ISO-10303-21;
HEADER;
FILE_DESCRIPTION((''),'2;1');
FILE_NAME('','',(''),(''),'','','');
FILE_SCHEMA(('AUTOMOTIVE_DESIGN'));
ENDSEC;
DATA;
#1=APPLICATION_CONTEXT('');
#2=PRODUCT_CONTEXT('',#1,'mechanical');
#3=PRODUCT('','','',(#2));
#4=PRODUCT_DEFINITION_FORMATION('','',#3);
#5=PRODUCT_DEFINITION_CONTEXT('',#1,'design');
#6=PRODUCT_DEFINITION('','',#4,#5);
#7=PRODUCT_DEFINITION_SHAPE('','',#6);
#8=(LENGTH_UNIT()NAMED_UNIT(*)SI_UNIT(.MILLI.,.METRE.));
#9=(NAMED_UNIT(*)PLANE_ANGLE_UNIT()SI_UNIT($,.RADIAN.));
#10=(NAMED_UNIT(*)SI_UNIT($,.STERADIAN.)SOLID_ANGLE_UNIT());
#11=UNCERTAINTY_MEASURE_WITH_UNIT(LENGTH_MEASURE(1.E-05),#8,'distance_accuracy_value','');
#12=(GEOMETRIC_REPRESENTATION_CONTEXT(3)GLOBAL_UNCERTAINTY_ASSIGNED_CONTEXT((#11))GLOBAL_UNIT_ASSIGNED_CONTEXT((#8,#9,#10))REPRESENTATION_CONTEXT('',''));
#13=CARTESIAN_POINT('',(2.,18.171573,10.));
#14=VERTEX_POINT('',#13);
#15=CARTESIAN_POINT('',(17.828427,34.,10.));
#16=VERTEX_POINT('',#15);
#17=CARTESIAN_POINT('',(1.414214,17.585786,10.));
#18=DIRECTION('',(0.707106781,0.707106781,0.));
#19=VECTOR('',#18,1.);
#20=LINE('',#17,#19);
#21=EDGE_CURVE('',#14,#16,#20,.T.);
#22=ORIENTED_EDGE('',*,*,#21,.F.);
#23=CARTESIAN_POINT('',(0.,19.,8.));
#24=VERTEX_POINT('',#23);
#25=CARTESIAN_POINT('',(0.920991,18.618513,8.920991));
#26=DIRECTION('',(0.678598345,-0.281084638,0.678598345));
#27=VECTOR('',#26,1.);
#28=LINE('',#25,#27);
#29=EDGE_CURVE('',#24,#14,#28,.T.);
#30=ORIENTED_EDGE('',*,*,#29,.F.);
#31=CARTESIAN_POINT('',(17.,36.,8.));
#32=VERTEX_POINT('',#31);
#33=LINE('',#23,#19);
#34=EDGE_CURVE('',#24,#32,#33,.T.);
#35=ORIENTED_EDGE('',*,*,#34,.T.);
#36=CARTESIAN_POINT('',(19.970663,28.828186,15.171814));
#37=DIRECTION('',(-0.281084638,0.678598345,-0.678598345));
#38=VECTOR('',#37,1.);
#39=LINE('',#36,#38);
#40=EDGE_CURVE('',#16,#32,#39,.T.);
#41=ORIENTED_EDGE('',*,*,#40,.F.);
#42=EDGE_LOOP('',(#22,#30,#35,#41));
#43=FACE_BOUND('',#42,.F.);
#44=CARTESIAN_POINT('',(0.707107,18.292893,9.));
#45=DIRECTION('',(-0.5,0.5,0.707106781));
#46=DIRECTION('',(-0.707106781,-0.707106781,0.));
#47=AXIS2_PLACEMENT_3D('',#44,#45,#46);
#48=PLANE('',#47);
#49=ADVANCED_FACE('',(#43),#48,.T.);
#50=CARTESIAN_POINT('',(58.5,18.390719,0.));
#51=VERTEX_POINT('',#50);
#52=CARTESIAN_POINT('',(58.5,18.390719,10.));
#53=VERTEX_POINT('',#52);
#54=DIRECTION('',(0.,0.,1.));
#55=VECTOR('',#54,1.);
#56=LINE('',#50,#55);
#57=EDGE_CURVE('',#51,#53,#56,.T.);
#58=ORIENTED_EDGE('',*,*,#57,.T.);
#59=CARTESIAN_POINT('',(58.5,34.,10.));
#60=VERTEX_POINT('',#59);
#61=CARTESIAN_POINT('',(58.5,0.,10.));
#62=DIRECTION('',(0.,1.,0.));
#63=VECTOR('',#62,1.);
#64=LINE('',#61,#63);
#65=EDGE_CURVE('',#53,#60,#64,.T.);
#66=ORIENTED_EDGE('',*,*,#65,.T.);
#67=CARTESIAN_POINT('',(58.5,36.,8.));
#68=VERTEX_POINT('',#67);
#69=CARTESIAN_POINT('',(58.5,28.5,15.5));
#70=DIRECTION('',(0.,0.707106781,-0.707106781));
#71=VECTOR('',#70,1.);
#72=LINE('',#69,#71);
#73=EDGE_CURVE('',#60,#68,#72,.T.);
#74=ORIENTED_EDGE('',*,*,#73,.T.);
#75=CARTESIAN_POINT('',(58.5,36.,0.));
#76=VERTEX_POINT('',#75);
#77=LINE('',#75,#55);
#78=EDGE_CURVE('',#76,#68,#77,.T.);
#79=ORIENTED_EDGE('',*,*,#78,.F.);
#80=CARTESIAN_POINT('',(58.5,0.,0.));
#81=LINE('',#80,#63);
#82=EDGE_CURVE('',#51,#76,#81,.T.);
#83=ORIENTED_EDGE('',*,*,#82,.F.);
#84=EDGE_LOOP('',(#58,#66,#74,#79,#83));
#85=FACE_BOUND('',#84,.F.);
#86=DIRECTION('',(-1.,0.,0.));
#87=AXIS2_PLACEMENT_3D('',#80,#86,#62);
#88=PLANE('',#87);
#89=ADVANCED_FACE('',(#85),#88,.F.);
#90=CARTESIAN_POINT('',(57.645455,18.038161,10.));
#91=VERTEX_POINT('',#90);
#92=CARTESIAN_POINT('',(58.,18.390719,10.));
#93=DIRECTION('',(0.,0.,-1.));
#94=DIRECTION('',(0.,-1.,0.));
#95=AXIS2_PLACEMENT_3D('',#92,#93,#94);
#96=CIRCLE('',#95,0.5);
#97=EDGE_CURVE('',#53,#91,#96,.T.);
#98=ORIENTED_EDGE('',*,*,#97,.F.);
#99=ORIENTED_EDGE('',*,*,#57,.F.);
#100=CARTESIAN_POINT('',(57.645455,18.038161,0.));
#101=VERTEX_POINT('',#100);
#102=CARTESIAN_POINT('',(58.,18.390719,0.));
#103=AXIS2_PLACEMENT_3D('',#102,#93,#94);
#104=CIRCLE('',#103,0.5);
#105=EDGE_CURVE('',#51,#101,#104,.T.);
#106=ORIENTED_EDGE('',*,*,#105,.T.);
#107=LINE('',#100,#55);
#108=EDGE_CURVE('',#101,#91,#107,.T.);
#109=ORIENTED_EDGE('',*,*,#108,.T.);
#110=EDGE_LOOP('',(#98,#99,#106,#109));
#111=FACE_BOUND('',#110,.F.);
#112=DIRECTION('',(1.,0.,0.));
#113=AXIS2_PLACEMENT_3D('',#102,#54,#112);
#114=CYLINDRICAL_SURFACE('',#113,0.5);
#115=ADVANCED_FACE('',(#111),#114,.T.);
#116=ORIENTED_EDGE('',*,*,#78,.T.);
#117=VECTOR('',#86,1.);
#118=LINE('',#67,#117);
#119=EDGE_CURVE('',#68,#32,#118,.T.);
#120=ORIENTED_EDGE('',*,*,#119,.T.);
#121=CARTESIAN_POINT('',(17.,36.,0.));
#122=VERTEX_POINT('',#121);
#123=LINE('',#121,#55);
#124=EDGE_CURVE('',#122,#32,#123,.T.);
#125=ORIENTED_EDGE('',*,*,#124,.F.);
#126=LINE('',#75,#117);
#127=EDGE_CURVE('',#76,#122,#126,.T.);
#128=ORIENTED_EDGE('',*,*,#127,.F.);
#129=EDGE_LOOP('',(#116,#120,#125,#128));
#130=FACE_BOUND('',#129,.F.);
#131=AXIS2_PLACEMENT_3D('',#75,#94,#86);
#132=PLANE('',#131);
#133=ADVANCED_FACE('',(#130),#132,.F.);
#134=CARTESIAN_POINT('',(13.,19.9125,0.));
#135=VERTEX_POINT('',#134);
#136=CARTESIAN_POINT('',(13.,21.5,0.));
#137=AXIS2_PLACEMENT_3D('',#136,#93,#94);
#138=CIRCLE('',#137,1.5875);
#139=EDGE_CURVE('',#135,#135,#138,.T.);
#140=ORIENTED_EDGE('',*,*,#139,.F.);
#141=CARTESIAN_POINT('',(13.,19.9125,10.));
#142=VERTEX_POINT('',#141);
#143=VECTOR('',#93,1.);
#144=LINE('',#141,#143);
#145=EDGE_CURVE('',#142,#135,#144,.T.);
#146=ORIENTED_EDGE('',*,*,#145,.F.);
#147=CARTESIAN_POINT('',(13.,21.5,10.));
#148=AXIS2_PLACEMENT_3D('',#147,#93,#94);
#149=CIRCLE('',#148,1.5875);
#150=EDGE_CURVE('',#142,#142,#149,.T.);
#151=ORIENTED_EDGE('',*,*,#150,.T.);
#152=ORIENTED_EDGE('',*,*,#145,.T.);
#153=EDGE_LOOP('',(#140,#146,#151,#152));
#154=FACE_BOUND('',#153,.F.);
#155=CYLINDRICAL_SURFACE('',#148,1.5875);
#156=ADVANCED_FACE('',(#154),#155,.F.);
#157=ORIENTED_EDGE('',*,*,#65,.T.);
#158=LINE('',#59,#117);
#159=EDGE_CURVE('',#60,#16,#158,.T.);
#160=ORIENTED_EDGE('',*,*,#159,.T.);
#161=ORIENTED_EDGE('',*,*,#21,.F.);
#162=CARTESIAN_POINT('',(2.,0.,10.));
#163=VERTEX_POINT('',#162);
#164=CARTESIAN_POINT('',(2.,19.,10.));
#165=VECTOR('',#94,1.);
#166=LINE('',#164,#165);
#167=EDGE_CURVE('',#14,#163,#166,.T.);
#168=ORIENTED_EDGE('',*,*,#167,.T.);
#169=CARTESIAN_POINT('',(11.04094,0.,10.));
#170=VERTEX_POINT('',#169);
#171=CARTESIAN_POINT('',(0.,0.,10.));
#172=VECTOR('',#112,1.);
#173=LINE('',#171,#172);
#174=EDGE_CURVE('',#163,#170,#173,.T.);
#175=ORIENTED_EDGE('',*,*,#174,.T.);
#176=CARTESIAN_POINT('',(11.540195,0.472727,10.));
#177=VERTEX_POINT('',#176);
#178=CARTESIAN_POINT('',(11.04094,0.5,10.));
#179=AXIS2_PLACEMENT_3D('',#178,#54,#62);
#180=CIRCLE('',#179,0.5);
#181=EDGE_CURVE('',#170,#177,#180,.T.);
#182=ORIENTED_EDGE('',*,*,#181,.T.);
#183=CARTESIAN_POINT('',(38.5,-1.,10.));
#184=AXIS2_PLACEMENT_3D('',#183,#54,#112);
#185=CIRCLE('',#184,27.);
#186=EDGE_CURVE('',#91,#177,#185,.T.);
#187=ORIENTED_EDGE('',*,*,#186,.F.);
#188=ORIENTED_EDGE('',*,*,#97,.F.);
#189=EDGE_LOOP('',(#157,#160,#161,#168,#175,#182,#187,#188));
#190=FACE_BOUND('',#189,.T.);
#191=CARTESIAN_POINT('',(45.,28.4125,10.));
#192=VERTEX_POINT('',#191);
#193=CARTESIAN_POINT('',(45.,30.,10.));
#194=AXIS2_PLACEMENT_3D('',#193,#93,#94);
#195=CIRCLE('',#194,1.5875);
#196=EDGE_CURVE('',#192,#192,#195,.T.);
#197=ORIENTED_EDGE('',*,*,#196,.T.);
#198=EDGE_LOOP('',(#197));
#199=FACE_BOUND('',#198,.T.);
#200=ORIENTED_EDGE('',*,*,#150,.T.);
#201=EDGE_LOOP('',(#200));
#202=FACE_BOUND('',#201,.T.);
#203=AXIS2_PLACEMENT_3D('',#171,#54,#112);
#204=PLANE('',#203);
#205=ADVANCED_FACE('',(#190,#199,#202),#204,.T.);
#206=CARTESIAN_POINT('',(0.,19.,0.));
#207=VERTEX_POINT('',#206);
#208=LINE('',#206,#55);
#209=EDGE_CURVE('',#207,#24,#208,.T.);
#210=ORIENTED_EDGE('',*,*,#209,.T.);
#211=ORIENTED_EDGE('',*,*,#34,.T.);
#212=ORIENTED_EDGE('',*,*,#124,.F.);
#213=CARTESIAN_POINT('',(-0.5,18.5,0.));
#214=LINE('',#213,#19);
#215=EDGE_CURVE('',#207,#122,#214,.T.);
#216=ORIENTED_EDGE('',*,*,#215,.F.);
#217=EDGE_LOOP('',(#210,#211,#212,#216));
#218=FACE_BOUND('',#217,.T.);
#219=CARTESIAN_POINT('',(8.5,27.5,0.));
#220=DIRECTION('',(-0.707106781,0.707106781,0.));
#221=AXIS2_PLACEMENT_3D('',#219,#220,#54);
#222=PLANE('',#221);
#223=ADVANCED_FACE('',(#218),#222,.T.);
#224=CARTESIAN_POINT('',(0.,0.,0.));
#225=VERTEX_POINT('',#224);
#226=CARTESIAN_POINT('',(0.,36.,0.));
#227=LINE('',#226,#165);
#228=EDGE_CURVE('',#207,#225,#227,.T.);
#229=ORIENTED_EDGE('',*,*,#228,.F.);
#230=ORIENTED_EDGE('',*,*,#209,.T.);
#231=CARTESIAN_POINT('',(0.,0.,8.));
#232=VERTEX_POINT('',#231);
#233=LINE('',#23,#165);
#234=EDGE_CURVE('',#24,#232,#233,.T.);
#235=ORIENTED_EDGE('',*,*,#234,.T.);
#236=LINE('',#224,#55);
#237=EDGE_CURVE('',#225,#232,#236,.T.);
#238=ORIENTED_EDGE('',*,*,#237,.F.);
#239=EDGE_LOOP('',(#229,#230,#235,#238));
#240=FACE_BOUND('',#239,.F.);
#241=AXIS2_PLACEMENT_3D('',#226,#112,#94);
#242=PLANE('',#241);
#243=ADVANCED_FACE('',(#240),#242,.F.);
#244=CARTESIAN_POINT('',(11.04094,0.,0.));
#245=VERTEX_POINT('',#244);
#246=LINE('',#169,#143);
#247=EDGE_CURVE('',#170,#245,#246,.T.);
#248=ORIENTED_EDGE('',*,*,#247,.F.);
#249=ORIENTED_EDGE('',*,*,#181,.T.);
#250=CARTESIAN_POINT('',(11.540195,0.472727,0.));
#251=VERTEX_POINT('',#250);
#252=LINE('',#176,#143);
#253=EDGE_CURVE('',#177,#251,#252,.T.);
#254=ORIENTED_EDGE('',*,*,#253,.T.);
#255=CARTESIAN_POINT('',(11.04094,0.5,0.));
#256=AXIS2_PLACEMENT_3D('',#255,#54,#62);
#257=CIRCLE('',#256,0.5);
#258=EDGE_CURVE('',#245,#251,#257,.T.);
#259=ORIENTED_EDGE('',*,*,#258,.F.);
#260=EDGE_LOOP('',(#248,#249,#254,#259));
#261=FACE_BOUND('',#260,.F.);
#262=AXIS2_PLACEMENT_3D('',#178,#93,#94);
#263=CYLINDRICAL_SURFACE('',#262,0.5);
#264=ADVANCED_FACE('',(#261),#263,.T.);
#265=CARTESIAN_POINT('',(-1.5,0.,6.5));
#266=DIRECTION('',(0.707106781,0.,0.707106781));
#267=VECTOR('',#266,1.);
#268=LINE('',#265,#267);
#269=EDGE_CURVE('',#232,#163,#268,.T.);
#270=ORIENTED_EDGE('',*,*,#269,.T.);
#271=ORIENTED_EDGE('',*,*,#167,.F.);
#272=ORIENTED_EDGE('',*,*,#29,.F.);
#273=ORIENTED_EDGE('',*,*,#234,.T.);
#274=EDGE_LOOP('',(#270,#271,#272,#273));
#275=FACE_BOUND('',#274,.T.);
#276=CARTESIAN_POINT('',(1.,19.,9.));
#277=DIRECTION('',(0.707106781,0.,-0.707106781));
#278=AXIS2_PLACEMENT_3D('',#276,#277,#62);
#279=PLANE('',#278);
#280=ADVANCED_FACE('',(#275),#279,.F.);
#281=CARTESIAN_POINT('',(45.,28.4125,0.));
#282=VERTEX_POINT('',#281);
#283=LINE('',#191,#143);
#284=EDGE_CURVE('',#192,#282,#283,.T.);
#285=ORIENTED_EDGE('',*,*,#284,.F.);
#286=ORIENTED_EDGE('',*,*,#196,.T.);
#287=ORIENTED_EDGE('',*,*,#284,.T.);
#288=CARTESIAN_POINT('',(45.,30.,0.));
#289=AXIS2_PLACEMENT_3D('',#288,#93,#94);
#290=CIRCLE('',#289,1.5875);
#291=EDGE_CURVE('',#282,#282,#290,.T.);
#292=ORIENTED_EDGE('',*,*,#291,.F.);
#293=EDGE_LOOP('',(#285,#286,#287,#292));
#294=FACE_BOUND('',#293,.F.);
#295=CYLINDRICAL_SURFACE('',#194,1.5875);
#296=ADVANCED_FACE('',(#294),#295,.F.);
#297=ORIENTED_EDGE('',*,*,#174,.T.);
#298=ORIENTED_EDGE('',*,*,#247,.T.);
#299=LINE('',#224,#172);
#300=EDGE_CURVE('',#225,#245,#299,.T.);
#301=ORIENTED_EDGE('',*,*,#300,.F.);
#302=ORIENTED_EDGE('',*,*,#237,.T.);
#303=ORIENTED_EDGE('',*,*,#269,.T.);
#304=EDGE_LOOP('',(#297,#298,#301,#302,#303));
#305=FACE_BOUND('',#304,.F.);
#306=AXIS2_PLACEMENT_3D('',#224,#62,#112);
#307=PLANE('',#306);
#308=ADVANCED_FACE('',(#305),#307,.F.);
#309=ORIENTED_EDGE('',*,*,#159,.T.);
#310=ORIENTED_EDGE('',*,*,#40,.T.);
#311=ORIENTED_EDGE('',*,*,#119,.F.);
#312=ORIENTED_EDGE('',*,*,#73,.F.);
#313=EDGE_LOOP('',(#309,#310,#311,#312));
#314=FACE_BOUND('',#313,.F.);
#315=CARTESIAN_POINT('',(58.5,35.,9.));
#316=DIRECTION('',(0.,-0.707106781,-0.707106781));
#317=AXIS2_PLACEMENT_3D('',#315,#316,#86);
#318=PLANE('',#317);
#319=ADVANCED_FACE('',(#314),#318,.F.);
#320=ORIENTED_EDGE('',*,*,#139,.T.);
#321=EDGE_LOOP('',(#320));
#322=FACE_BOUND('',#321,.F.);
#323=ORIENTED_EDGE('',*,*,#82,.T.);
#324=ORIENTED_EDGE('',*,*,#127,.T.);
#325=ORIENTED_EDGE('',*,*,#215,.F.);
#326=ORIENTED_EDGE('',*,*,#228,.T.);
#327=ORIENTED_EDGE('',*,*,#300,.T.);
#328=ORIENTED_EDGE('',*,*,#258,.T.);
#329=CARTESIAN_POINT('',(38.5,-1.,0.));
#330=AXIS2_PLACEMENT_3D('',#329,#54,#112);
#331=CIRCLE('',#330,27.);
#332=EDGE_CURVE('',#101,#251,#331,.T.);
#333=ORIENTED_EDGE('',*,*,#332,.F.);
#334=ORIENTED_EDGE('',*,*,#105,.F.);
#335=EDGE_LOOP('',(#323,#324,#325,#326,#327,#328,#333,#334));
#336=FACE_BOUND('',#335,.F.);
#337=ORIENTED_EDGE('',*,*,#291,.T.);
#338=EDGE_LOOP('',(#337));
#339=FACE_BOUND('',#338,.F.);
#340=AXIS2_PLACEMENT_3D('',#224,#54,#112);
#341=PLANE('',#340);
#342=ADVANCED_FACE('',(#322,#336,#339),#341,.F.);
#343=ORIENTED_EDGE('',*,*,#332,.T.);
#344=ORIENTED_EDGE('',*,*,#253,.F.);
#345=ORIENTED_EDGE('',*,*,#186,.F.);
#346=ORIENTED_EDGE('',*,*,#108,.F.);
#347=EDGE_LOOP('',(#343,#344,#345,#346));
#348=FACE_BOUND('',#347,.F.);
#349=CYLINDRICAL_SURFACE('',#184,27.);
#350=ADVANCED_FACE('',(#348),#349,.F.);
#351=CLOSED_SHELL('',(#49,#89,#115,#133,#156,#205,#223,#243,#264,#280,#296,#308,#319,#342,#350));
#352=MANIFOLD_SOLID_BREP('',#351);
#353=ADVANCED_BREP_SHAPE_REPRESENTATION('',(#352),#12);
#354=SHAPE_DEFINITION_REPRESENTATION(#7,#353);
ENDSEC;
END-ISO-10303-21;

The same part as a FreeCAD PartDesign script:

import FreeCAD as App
import Part
import Sketcher
from FreeCAD import Vector


def edges_at(feature, points):
    """Names of the edges that pass closest to the given points."""
    edges = feature.Shape.Edges
    near = lambda p: min(range(len(edges)), key=lambda i: edges[i].distToShape(Part.Vertex(*p))[0])
    return sorted({f"Edge{near(p) + 1}" for p in points})


def add_polygon(sketch, points):
    """Adds a closed chain of lines whose ends are joined by coincident constraints."""
    first, n = sketch.GeometryCount, len(points)
    for a, b in zip(points, points[1:] + points[:1]):
        sketch.addGeometry(Part.LineSegment(App.Vector(*a, 0), App.Vector(*b, 0)), False)
    for i in range(n):
        sketch.addConstraint(Sketcher.Constraint("Coincident", first + i, 2, first + (i + 1) % n, 1))

doc = App.newDocument("Part")
params = doc.addObject("Spreadsheet::Sheet", "Params")
for row, (alias, value) in enumerate([
    ("sketch1_height", "36 mm"),
    ("sketch1_width", "58.5 mm"),
    ("pad1_length", "10 mm"),
    ("sketch2_diameter", "54 mm"),
    ("pocket1_length", "10 mm"),
    ("hole_diameter", "3.175 mm"),
    ("hole_depth", "10 mm"),
    ("chamfer_size", "17 mm"),
    ("chamfer2_size", "2 mm"),
    ("fillet_radius", "0.5 mm"),
], start=1):
    params.set(f"A{row}", alias)
    params.set(f"B{row}", "=" + value)
    params.setAlias(f"B{row}", alias)

body = doc.addObject("PartDesign::Body", "Body")

sketch1 = body.newObject("Sketcher::SketchObject", "Sketch")
sketch1.AttachmentSupport = (doc.getObject("XY_Plane"), [""])
sketch1.MapMode = "FlatFace"
add_polygon(sketch1, [(0, 36), (0, 0), (58.5, 0), (58.5, 36)])
sketch1.addConstraint(Sketcher.Constraint("Vertical", 0))
sketch1.addConstraint(Sketcher.Constraint("Horizontal", 1))
sketch1.addConstraint(Sketcher.Constraint("Vertical", 2))
sketch1.addConstraint(Sketcher.Constraint("Horizontal", 3))
sketch1.addConstraint(Sketcher.Constraint("Coincident", 0, 2, -1, 1))
sketch1.addConstraint(Sketcher.Constraint("DistanceY", 0, 2, 0, 1, 36.0))
sketch1.addConstraint(Sketcher.Constraint("DistanceX", 1, 1, 1, 2, 58.5))
sketch1.setExpression("Constraints[9]", "Params.sketch1_height")
sketch1.setExpression("Constraints[10]", "Params.sketch1_width")
pad1 = body.newObject("PartDesign::Pad", "Pad")
pad1.Profile = sketch1
pad1.setExpression("Length", "Params.pad1_length")

sketch2 = body.newObject("Sketcher::SketchObject", "Sketch001")
sketch2.AttachmentSupport = (doc.getObject("XY_Plane"), [""])
sketch2.MapMode = "FlatFace"
sketch2.AttachmentOffset = App.Placement(Vector(0, 0, 10), App.Rotation())
sketch2.addGeometry(Part.Circle(Vector(38.5, -1, 0), Vector(0, 0, 1), 27), False)
sketch2.addConstraint(Sketcher.Constraint("Diameter", 0, 54.0))
sketch2.addConstraint(Sketcher.Constraint("DistanceY", 0, 3, -1, 1, 1.0))
sketch2.addConstraint(Sketcher.Constraint("DistanceX", -1, 1, 0, 3, 38.5))
sketch2.setExpression("Constraints[0]", "Params.sketch2_diameter")
pocket1 = body.newObject("PartDesign::Pocket", "Pocket")
pocket1.Profile = sketch2
pocket1.setExpression("Length", "Params.pocket1_length")

sketch3 = body.newObject("Sketcher::SketchObject", "Sketch002")
sketch3.AttachmentSupport = (doc.getObject("XY_Plane"), [""])
sketch3.MapMode = "FlatFace"
sketch3.AttachmentOffset = App.Placement(Vector(0, 0, 10), App.Rotation())
sketch3.addGeometry(Part.Circle(Vector(13, 21.5, 0), Vector(0, 0, 1), 1.5875), False)
sketch3.addGeometry(Part.Circle(Vector(45, 30, 0), Vector(0, 0, 1), 1.5875), False)
sketch3.addConstraint(Sketcher.Constraint("Equal", 0, 1))
sketch3.addConstraint(Sketcher.Constraint("Diameter", 0, 3.175))
sketch3.addConstraint(Sketcher.Constraint("DistanceX", -1, 1, 0, 3, 13.0))
sketch3.addConstraint(Sketcher.Constraint("DistanceX", -1, 1, 1, 3, 45.0))
sketch3.addConstraint(Sketcher.Constraint("DistanceY", -1, 1, 1, 3, 30.0))
sketch3.addConstraint(Sketcher.Constraint("DistanceY", -1, 1, 0, 3, 21.5))
doc.recompute()
hole = body.newObject("PartDesign::Hole", "Hole")
hole.Profile = sketch3
hole.ThreadType = "None"
hole.setExpression("Diameter", "Params.hole_diameter")
hole.DepthType = "Dimension"
hole.setExpression("Depth", "Params.hole_depth")
hole.DrillPoint = "Angled"
hole.DrillPointAngle = 118
doc.recompute()

chamfer = body.newObject("PartDesign::Chamfer", "Chamfer")
chamfer.Base = (hole, edges_at(hole, [(0, 36, 5)]))
chamfer.setExpression("Size", "Params.chamfer_size")
doc.recompute()

chamfer2 = body.newObject("PartDesign::Chamfer", "Chamfer001")
chamfer2.Base = (chamfer, edges_at(chamfer, [(37.75, 36, 10), (8.5, 27.5, 10), (0, 9.5, 10)]))
chamfer2.setExpression("Size", "Params.chamfer2_size")
doc.recompute()

fillet = body.newObject("PartDesign::Fillet", "Fillet")
fillet.Base = (chamfer2, edges_at(chamfer2, [(58.5, 17.138, 5), (11.518, 0, 5)]))
fillet.setExpression("Radius", "Params.fillet_radius")

doc.recompute()
